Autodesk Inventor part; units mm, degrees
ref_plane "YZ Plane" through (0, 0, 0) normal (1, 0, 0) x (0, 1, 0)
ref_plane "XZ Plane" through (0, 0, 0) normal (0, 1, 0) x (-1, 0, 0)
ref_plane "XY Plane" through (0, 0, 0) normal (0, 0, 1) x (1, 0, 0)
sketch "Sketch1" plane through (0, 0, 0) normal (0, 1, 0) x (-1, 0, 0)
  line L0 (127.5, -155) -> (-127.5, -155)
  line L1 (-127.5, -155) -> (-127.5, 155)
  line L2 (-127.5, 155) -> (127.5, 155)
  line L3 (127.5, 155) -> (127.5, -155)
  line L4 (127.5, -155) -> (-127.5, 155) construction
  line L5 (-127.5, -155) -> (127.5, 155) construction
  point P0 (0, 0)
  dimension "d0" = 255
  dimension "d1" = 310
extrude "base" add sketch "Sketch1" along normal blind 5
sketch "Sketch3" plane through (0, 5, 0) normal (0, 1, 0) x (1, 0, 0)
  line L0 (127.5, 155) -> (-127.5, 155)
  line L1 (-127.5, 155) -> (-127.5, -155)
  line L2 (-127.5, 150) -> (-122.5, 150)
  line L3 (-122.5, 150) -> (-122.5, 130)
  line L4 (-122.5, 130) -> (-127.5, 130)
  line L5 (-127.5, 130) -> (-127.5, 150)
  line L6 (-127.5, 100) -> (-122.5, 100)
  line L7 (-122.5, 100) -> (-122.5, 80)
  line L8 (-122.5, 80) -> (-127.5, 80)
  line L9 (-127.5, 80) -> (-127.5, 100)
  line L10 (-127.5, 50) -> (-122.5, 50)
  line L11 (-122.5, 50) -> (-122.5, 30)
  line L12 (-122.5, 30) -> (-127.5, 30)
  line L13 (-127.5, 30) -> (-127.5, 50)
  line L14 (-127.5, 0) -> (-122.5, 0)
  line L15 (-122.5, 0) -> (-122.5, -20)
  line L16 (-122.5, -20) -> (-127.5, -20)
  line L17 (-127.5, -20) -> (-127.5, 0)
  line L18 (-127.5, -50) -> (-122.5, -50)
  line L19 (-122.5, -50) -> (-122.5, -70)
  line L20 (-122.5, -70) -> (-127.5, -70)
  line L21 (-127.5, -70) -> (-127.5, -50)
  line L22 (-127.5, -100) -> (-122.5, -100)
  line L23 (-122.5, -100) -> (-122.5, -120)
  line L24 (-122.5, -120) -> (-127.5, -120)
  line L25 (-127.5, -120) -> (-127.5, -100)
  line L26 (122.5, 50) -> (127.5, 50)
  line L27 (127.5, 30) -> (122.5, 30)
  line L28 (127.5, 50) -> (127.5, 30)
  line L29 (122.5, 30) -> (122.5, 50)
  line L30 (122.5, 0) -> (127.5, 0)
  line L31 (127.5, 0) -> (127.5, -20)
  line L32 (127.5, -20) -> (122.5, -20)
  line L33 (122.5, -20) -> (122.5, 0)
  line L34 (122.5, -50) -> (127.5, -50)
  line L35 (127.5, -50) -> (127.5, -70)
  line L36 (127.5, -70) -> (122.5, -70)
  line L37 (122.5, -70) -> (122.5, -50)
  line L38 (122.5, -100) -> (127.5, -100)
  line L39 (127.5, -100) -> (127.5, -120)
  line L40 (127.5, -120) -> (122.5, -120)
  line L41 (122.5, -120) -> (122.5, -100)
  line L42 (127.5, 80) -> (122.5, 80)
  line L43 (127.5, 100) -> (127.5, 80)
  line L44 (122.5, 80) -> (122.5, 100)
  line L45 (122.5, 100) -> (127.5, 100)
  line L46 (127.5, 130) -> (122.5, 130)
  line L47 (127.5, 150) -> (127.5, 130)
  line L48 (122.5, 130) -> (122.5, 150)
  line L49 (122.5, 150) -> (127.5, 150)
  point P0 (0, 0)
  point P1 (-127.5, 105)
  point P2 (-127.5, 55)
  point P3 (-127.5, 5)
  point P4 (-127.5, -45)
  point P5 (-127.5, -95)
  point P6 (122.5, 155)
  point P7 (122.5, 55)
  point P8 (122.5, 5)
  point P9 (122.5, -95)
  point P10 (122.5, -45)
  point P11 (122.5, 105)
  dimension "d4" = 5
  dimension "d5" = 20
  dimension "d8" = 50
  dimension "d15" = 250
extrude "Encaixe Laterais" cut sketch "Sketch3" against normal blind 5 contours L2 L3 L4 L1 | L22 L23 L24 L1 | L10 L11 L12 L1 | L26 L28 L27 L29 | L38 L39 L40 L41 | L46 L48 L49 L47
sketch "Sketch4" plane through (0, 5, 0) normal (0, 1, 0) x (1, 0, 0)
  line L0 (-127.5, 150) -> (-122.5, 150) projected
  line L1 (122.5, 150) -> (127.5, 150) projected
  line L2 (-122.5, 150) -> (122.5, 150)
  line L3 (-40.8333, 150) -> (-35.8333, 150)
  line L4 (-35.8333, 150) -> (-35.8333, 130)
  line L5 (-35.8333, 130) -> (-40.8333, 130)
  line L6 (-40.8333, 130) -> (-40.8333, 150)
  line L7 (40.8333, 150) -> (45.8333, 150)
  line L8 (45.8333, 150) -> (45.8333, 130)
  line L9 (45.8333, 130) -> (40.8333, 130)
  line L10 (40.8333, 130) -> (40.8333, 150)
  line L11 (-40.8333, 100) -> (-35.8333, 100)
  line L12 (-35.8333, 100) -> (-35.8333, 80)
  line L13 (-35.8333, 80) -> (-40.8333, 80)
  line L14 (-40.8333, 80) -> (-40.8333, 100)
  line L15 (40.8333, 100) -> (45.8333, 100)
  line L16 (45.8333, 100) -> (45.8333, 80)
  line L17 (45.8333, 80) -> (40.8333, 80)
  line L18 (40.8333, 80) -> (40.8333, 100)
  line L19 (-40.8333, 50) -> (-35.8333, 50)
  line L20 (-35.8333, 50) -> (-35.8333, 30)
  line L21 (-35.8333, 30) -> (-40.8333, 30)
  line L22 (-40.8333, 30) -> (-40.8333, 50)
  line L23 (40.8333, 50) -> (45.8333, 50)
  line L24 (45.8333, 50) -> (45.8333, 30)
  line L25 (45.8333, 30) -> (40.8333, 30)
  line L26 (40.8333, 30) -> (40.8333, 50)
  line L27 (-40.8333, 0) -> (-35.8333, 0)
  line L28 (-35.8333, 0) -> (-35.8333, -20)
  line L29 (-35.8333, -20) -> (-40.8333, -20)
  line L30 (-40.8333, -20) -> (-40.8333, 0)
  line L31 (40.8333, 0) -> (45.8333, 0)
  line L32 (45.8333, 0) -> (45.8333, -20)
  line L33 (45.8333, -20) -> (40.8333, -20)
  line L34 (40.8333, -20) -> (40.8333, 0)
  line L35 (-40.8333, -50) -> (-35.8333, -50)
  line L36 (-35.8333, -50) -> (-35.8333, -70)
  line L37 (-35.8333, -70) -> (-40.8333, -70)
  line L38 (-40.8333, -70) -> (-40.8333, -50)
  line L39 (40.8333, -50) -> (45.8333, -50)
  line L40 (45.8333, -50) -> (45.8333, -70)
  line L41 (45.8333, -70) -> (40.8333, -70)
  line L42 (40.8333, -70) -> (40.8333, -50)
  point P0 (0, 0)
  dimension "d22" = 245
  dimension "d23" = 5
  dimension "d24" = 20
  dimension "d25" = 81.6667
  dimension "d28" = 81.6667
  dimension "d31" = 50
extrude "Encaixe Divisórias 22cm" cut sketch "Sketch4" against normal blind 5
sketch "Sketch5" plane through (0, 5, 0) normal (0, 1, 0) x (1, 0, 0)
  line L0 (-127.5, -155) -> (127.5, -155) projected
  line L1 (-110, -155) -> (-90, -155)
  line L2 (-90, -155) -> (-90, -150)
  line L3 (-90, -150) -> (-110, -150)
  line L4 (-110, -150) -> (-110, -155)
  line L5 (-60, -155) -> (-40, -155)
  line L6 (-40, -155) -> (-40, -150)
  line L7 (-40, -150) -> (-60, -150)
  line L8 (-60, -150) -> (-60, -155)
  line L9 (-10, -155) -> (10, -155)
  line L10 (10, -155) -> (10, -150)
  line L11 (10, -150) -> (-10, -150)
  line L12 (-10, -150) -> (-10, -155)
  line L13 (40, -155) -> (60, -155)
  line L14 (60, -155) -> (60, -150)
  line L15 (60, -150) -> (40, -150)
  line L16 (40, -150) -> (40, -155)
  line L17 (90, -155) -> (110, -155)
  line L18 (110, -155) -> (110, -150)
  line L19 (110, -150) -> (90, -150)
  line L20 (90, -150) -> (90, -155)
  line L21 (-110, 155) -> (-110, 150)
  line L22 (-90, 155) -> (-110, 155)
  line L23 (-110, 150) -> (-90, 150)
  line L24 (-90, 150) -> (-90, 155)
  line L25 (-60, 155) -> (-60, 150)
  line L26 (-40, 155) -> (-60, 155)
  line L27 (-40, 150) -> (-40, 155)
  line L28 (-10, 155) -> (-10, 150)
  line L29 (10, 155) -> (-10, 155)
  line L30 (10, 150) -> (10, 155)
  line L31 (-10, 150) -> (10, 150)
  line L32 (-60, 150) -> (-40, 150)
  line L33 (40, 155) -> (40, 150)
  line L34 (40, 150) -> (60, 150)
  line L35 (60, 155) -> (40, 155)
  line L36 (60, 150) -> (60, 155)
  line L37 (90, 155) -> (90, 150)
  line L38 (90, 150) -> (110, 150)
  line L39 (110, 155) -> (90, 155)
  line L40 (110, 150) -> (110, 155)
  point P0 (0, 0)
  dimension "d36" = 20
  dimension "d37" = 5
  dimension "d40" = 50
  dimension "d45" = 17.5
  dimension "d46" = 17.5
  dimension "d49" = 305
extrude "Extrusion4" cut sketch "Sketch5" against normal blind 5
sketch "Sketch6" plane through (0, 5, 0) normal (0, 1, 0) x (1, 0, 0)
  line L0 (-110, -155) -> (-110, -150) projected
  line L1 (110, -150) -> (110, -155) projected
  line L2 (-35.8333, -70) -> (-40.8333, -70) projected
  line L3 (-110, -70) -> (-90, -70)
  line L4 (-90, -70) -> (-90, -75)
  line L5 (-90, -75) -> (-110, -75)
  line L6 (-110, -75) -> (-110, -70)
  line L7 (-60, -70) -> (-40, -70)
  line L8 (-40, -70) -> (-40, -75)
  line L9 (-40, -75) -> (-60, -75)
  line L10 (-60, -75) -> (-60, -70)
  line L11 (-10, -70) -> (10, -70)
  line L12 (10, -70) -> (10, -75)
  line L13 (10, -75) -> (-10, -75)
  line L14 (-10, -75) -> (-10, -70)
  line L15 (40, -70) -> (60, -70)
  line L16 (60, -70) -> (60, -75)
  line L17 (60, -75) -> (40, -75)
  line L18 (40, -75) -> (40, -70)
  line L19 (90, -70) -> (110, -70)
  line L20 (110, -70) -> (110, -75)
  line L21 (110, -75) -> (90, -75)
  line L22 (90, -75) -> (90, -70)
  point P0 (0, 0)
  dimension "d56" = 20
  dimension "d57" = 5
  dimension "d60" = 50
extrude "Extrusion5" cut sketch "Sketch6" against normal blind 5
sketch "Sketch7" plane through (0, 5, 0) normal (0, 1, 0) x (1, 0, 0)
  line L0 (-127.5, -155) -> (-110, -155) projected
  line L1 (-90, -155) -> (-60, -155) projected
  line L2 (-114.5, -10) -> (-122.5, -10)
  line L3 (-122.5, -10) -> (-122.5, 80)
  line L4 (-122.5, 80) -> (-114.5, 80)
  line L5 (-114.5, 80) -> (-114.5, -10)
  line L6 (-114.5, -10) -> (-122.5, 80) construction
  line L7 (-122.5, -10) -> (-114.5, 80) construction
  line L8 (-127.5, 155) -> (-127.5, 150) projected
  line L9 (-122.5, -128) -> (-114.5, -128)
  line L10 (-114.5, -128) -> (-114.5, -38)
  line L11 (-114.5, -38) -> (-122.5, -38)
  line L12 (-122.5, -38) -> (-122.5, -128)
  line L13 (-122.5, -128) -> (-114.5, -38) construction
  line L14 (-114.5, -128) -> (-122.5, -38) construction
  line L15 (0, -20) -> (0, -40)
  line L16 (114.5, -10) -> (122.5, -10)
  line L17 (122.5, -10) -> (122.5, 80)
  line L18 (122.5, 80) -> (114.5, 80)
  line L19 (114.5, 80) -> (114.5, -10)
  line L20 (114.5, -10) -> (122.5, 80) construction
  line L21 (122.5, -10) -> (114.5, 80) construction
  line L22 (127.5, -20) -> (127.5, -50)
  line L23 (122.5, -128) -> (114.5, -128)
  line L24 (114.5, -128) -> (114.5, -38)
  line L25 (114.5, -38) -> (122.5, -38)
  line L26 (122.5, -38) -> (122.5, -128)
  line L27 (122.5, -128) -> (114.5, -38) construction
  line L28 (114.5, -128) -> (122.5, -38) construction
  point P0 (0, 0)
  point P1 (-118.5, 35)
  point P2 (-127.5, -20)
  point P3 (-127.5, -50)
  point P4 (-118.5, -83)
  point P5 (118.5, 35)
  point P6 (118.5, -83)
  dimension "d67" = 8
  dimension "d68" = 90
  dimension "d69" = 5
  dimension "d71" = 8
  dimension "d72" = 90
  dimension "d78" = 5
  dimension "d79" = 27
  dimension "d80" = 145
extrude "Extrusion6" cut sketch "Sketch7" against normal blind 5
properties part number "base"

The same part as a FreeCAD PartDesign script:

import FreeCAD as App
import Part
import Sketcher

V = App.Vector
Q = App.Units.Quantity

doc = App.newDocument("Part")
body = doc.addObject("PartDesign::Body", "Body")

# Sketch on XZ plane
sketch1 = doc.addObject("Sketcher::SketchObject", "Sketch")
body.addObject(sketch1)
sketch1.AttachmentSupport = (doc.XZ_Plane, [""])
sketch1.MapMode = "FlatFace"
sketch1.addGeometry([
    Part.LineSegment(V(127.5, -155, 0), V(-127.5, -155, 0)),
    Part.LineSegment(V(-127.5, -155, 0), V(-127.5, 155, 0)),
    Part.LineSegment(V(-127.5, 155, 0), V(127.5, 155, 0)),
    Part.LineSegment(V(127.5, 155, 0), V(127.5, -155, 0)),
], False)
sketch1.addConstraint([
    Sketcher.Constraint("Coincident", 0, 2, 1, 1),
    Sketcher.Constraint("Coincident", 1, 2, 2, 1),
    Sketcher.Constraint("Coincident", 2, 2, 3, 1),
    Sketcher.Constraint("Coincident", 3, 2, 0, 1),
    Sketcher.Constraint("Horizontal", 0),
    Sketcher.Constraint("Vertical", 1),
    Sketcher.Constraint("Horizontal", 2),
    Sketcher.Constraint("Vertical", 3),
    Sketcher.Constraint("Symmetric", 0, 2, 2, 2, -1, 1),
    Sketcher.Constraint("DistanceX", 0, 2, 0, 1, Q("255 mm")),
    Sketcher.Constraint("DistanceY", 1, 1, 1, 2, Q("310 mm")),
])
pad1 = doc.addObject("PartDesign::Pad", "Pad")
body.addObject(pad1)
pad1.Profile = sketch1
pad1.Length = 5
pad1.Reversed = True

# Sketch on XZ plane
sketch2 = doc.addObject("Sketcher::SketchObject", "Sketch001")
body.addObject(sketch2)
sketch2.AttachmentSupport = (doc.XZ_Plane, [""])
sketch2.MapMode = "FlatFace"
sketch2.AttachmentOffset = App.Placement(V(0, 0, -5), App.Rotation())
sketch2.addGeometry([
    Part.LineSegment(V(-122.5, -150, 0), V(-127.5, -150, 0)),  # 0
    Part.LineSegment(V(-127.5, -150, 0), V(-127.5, -130, 0)),  # 1
    Part.LineSegment(V(-127.5, -130, 0), V(-122.5, -130, 0)),  # 2
    Part.LineSegment(V(-122.5, -130, 0), V(-122.5, -150, 0)),  # 3
    Part.LineSegment(V(-122.5, 100, 0), V(-127.5, 100, 0)),  # 4
    Part.LineSegment(V(-127.5, 100, 0), V(-127.5, 120, 0)),  # 5
    Part.LineSegment(V(-127.5, 120, 0), V(-122.5, 120, 0)),  # 6
    Part.LineSegment(V(-122.5, 120, 0), V(-122.5, 100, 0)),  # 7
    Part.LineSegment(V(-122.5, -50, 0), V(-127.5, -50, 0)),  # 8
    Part.LineSegment(V(-127.5, -50, 0), V(-127.5, -30, 0)),  # 9
    Part.LineSegment(V(-127.5, -30, 0), V(-122.5, -30, 0)),  # 10
    Part.LineSegment(V(-122.5, -30, 0), V(-122.5, -50, 0)),  # 11
    Part.LineSegment(V(127.5, -50, 0), V(122.5, -50, 0)),  # 12
    Part.LineSegment(V(122.5, -50, 0), V(122.5, -30, 0)),  # 13
    Part.LineSegment(V(122.5, -30, 0), V(127.5, -30, 0)),  # 14
    Part.LineSegment(V(127.5, -30, 0), V(127.5, -50, 0)),  # 15
    Part.LineSegment(V(127.5, 100, 0), V(122.5, 100, 0)),  # 16
    Part.LineSegment(V(122.5, 100, 0), V(122.5, 120, 0)),  # 17
    Part.LineSegment(V(122.5, 120, 0), V(127.5, 120, 0)),  # 18
    Part.LineSegment(V(127.5, 120, 0), V(127.5, 100, 0)),  # 19
    Part.LineSegment(V(122.5, -130, 0), V(127.5, -130, 0)),  # 20
    Part.LineSegment(V(127.5, -130, 0), V(127.5, -150, 0)),  # 21
    Part.LineSegment(V(127.5, -150, 0), V(122.5, -150, 0)),  # 22
    Part.LineSegment(V(122.5, -150, 0), V(122.5, -130, 0)),  # 23
], False)
sketch2.addConstraint([
    Sketcher.Constraint("Coincident", 0, 2, 1, 1),
    Sketcher.Constraint("Coincident", 1, 2, 2, 1),
    Sketcher.Constraint("Coincident", 2, 2, 3, 1),
    Sketcher.Constraint("Coincident", 3, 2, 0, 1),
    Sketcher.Constraint("Coincident", 4, 2, 5, 1),
    Sketcher.Constraint("Coincident", 5, 2, 6, 1),
    Sketcher.Constraint("Coincident", 6, 2, 7, 1),
    Sketcher.Constraint("Coincident", 7, 2, 4, 1),
    Sketcher.Constraint("Coincident", 8, 2, 9, 1),
    Sketcher.Constraint("Coincident", 9, 2, 10, 1),
    Sketcher.Constraint("Coincident", 10, 2, 11, 1),
    Sketcher.Constraint("Coincident", 11, 2, 8, 1),
    Sketcher.Constraint("Coincident", 12, 2, 13, 1),
    Sketcher.Constraint("Coincident", 13, 2, 14, 1),
    Sketcher.Constraint("Coincident", 14, 2, 15, 1),
    Sketcher.Constraint("Coincident", 15, 2, 12, 1),
    Sketcher.Constraint("Coincident", 16, 2, 17, 1),
    Sketcher.Constraint("Coincident", 17, 2, 18, 1),
    Sketcher.Constraint("Coincident", 18, 2, 19, 1),
    Sketcher.Constraint("Coincident", 19, 2, 16, 1),
    Sketcher.Constraint("Coincident", 20, 2, 21, 1),
    Sketcher.Constraint("Coincident", 21, 2, 22, 1),
    Sketcher.Constraint("Coincident", 22, 2, 23, 1),
    Sketcher.Constraint("Coincident", 23, 2, 20, 1),
    Sketcher.Constraint("Horizontal", 0),
    Sketcher.Constraint("Vertical", 1),
    Sketcher.Constraint("Horizontal", 2),
    Sketcher.Constraint("Vertical", 3),
    Sketcher.Constraint("Horizontal", 4),
    Sketcher.Constraint("Vertical", 5),
    Sketcher.Constraint("Horizontal", 6),
    Sketcher.Constraint("Vertical", 7),
    Sketcher.Constraint("Horizontal", 8),
    Sketcher.Constraint("Vertical", 9),
    Sketcher.Constraint("Horizontal", 10),
    Sketcher.Constraint("Vertical", 11),
    Sketcher.Constraint("Horizontal", 12),
    Sketcher.Constraint("Vertical", 13),
    Sketcher.Constraint("Horizontal", 14),
    Sketcher.Constraint("Vertical", 15),
    Sketcher.Constraint("Horizontal", 16),
    Sketcher.Constraint("Vertical", 17),
    Sketcher.Constraint("Horizontal", 18),
    Sketcher.Constraint("Vertical", 19),
    Sketcher.Constraint("Horizontal", 20),
    Sketcher.Constraint("Vertical", 21),
    Sketcher.Constraint("Horizontal", 22),
    Sketcher.Constraint("Vertical", 23),
    Sketcher.Constraint("Symmetric", 11, 2, 12, 2, -2),
    Sketcher.Constraint("Symmetric", 9, 2, 14, 2, -2),
    Sketcher.Constraint("Symmetric", 7, 2, 16, 2, -2),
    Sketcher.Constraint("Symmetric", 5, 2, 18, 2, -2),
    Sketcher.Constraint("Symmetric", 1, 2, 20, 2, -2),
    Sketcher.Constraint("Symmetric", 3, 2, 22, 2, -2),
    Sketcher.Constraint("Vertical", 1, 2, 4, 2),
    Sketcher.Constraint("Vertical", 3, 2, 6, 2),
    Sketcher.Constraint("Vertical", 5, 2, 8, 2),
    Sketcher.Constraint("Vertical", 7, 2, 10, 2),
    Sketcher.Constraint("Equal", 3, 5),
    Sketcher.Constraint("Equal", 7, 9),
    Sketcher.Constraint("DistanceX", 0, 2, 0, 1, Q("5 mm")),
    Sketcher.Constraint("DistanceY", 1, 1, 1, 2, Q("20 mm")),
    Sketcher.Constraint("DistanceY", 8, 2, -1, 1, Q("50 mm")),
    Sketcher.Constraint("DistanceY", 0, 2, 4, 2, Q("250 mm")),
    Sketcher.Constraint("DistanceX", 8, 2, 12, 2, Q("250 mm")),
    Sketcher.Constraint("DistanceY", 0, 2, -1, 1, Q("150 mm")),
])
pocket1 = doc.addObject("PartDesign::Pocket", "Pocket")
body.addObject(pocket1)
pocket1.Profile = sketch2
pocket1.Length = 5
pocket1.Reversed = True

# Sketch on XZ plane
sketch3 = doc.addObject("Sketcher::SketchObject", "Sketch002")
body.addObject(sketch3)
sketch3.AttachmentSupport = (doc.XZ_Plane, [""])
sketch3.MapMode = "FlatFace"
sketch3.AttachmentOffset = App.Placement(V(0, 0, -5), App.Rotation())
sketch3.addGeometry([
    Part.LineSegment(V(45.8333, -150, 0), V(40.8333, -150, 0)),  # 0
    Part.LineSegment(V(40.8333, -150, 0), V(40.8333, -130, 0)),  # 1
    Part.LineSegment(V(40.8333, -130, 0), V(45.8333, -130, 0)),  # 2
    Part.LineSegment(V(45.8333, -130, 0), V(45.8333, -150, 0)),  # 3
    Part.LineSegment(V(-35.8333, -150, 0), V(-40.8333, -150, 0)),  # 4
    Part.LineSegment(V(-40.8333, -150, 0), V(-40.8333, -130, 0)),  # 5
    Part.LineSegment(V(-40.8333, -130, 0), V(-35.8333, -130, 0)),  # 6
    Part.LineSegment(V(-35.8333, -130, 0), V(-35.8333, -150, 0)),  # 7
    Part.LineSegment(V(-35.8333, -100, 0), V(-40.8333, -100, 0)),  # 8
    Part.LineSegment(V(-40.8333, -100, 0), V(-40.8333, -80, 0)),  # 9
    Part.LineSegment(V(-40.8333, -80, 0), V(-35.8333, -80, 0)),  # 10
    Part.LineSegment(V(-35.8333, -80, 0), V(-35.8333, -100, 0)),  # 11
    Part.LineSegment(V(45.8333, -100, 0), V(40.8333, -100, 0)),  # 12
    Part.LineSegment(V(40.8333, -100, 0), V(40.8333, -80, 0)),  # 13
    Part.LineSegment(V(40.8333, -80, 0), V(45.8333, -80, 0)),  # 14
    Part.LineSegment(V(45.8333, -80, 0), V(45.8333, -100, 0)),  # 15
    Part.LineSegment(V(-35.8333, -50, 0), V(-40.8333, -50, 0)),  # 16
    Part.LineSegment(V(-40.8333, -50, 0), V(-40.8333, -30, 0)),  # 17
    Part.LineSegment(V(-40.8333, -30, 0), V(-35.8333, -30, 0)),  # 18
    Part.LineSegment(V(-35.8333, -30, 0), V(-35.8333, -50, 0)),  # 19
    Part.LineSegment(V(45.8333, -50, 0), V(40.8333, -50, 0)),  # 20
    Part.LineSegment(V(40.8333, -50, 0), V(40.8333, -30, 0)),  # 21
    Part.LineSegment(V(40.8333, -30, 0), V(45.8333, -30, 0)),  # 22
    Part.LineSegment(V(45.8333, -30, 0), V(45.8333, -50, 0)),  # 23
    Part.LineSegment(V(-35.8333, 0, 0), V(-40.8333, 0, 0)),  # 24
    Part.LineSegment(V(-40.8333, 0, 0), V(-40.8333, 20, 0)),  # 25
    Part.LineSegment(V(-40.8333, 20, 0), V(-35.8333, 20, 0)),  # 26
    Part.LineSegment(V(-35.8333, 20, 0), V(-35.8333, 0, 0)),  # 27
    Part.LineSegment(V(45.8333, 0, 0), V(40.8333, 0, 0)),  # 28
    Part.LineSegment(V(40.8333, 0, 0), V(40.8333, 20, 0)),  # 29
    Part.LineSegment(V(40.8333, 20, 0), V(45.8333, 20, 0)),  # 30
    Part.LineSegment(V(45.8333, 20, 0), V(45.8333, 0, 0)),  # 31
    Part.LineSegment(V(-35.8333, 50, 0), V(-40.8333, 50, 0)),  # 32
    Part.LineSegment(V(-40.8333, 50, 0), V(-40.8333, 70, 0)),  # 33
    Part.LineSegment(V(-40.8333, 70, 0), V(-35.8333, 70, 0)),  # 34
    Part.LineSegment(V(-35.8333, 70, 0), V(-35.8333, 50, 0)),  # 35
    Part.LineSegment(V(45.8333, 50, 0), V(40.8333, 50, 0)),  # 36
    Part.LineSegment(V(40.8333, 50, 0), V(40.8333, 70, 0)),  # 37
    Part.LineSegment(V(40.8333, 70, 0), V(45.8333, 70, 0)),  # 38
    Part.LineSegment(V(45.8333, 70, 0), V(45.8333, 50, 0)),  # 39
], False)
sketch3.addConstraint([
    Sketcher.Constraint("Coincident", 0, 2, 1, 1),
    Sketcher.Constraint("Coincident", 1, 2, 2, 1),
    Sketcher.Constraint("Coincident", 2, 2, 3, 1),
    Sketcher.Constraint("Coincident", 3, 2, 0, 1),
    Sketcher.Constraint("Coincident", 4, 2, 5, 1),
    Sketcher.Constraint("Coincident", 5, 2, 6, 1),
    Sketcher.Constraint("Coincident", 6, 2, 7, 1),
    Sketcher.Constraint("Coincident", 7, 2, 4, 1),
    Sketcher.Constraint("Coincident", 8, 2, 9, 1),
    Sketcher.Constraint("Coincident", 9, 2, 10, 1),
    Sketcher.Constraint("Coincident", 10, 2, 11, 1),
    Sketcher.Constraint("Coincident", 11, 2, 8, 1),
    Sketcher.Constraint("Coincident", 12, 2, 13, 1),
    Sketcher.Constraint("Coincident", 13, 2, 14, 1),
    Sketcher.Constraint("Coincident", 14, 2, 15, 1),
    Sketcher.Constraint("Coincident", 15, 2, 12, 1),
    Sketcher.Constraint("Coincident", 16, 2, 17, 1),
    Sketcher.Constraint("Coincident", 17, 2, 18, 1),
    Sketcher.Constraint("Coincident", 18, 2, 19, 1),
    Sketcher.Constraint("Coincident", 19, 2, 16, 1),
    Sketcher.Constraint("Coincident", 20, 2, 21, 1),
    Sketcher.Constraint("Coincident", 21, 2, 22, 1),
    Sketcher.Constraint("Coincident", 22, 2, 23, 1),
    Sketcher.Constraint("Coincident", 23, 2, 20, 1),
    Sketcher.Constraint("Coincident", 24, 2, 25, 1),
    Sketcher.Constraint("Coincident", 25, 2, 26, 1),
    Sketcher.Constraint("Coincident", 26, 2, 27, 1),
    Sketcher.Constraint("Coincident", 27, 2, 24, 1),
    Sketcher.Constraint("Coincident", 28, 2, 29, 1),
    Sketcher.Constraint("Coincident", 29, 2, 30, 1),
    Sketcher.Constraint("Coincident", 30, 2, 31, 1),
    Sketcher.Constraint("Coincident", 31, 2, 28, 1),
    Sketcher.Constraint("Coincident", 32, 2, 33, 1),
    Sketcher.Constraint("Coincident", 33, 2, 34, 1),
    Sketcher.Constraint("Coincident", 34, 2, 35, 1),
    Sketcher.Constraint("Coincident", 35, 2, 32, 1),
    Sketcher.Constraint("Coincident", 36, 2, 37, 1),
    Sketcher.Constraint("Coincident", 37, 2, 38, 1),
    Sketcher.Constraint("Coincident", 38, 2, 39, 1),
    Sketcher.Constraint("Coincident", 39, 2, 36, 1),
    Sketcher.Constraint("Horizontal", 0),
    Sketcher.Constraint("Vertical", 1),
    Sketcher.Constraint("Horizontal", 2),
    Sketcher.Constraint("Vertical", 3),
    Sketcher.Constraint("Horizontal", 4),
    Sketcher.Constraint("Vertical", 5),
    Sketcher.Constraint("Horizontal", 6),
    Sketcher.Constraint("Vertical", 7),
    Sketcher.Constraint("Horizontal", 8),
    Sketcher.Constraint("Vertical", 9),
    Sketcher.Constraint("Horizontal", 10),
    Sketcher.Constraint("Vertical", 11),
    Sketcher.Constraint("Horizontal", 12),
    Sketcher.Constraint("Vertical", 13),
    Sketcher.Constraint("Horizontal", 14),
    Sketcher.Constraint("Vertical", 15),
    Sketcher.Constraint("Horizontal", 16),
    Sketcher.Constraint("Vertical", 17),
    Sketcher.Constraint("Horizontal", 18),
    Sketcher.Constraint("Vertical", 19),
    Sketcher.Constraint("Horizontal", 20),
    Sketcher.Constraint("Vertical", 21),
    Sketcher.Constraint("Horizontal", 22),
    Sketcher.Constraint("Vertical", 23),
    Sketcher.Constraint("Horizontal", 24),
    Sketcher.Constraint("Vertical", 25),
    Sketcher.Constraint("Horizontal", 26),
    Sketcher.Constraint("Vertical", 27),
    Sketcher.Constraint("Horizontal", 28),
    Sketcher.Constraint("Vertical", 29),
    Sketcher.Constraint("Horizontal", 30),
    Sketcher.Constraint("Vertical", 31),
    Sketcher.Constraint("Horizontal", 32),
    Sketcher.Constraint("Vertical", 33),
    Sketcher.Constraint("Horizontal", 34),
    Sketcher.Constraint("Vertical", 35),
    Sketcher.Constraint("Horizontal", 36),
    Sketcher.Constraint("Vertical", 37),
    Sketcher.Constraint("Horizontal", 38),
    Sketcher.Constraint("Vertical", 39),
    Sketcher.Constraint("Symmetric", 24, 2, 28, 2, -1, 1),
    Sketcher.Constraint("Symmetric", 20, 2, 32, 2, -1, 1),
    Sketcher.Constraint("Symmetric", 16, 2, 36, 2, -1, 1),
    Sketcher.Constraint("Symmetric", 0, 2, 4, 2, -2),
    Sketcher.Constraint("Symmetric", 8, 2, 12, 2, -2),
    Sketcher.Constraint("Symmetric", 16, 2, 20, 2, -2),
    Sketcher.Constraint("PointOnObject", 24, 2, -1),
    Sketcher.Constraint("Horizontal", 2, 2, 5, 2),
    Sketcher.Constraint("Horizontal", 10, 2, 13, 2),
    Sketcher.Constraint("Horizontal", 18, 2, 21, 2),
    Sketcher.Constraint("Horizontal", 26, 2, 29, 2),
    Sketcher.Constraint("Horizontal", 34, 2, 37, 2),
    Sketcher.Constraint("Vertical", 5, 2, 8, 2),
    Sketcher.Constraint("Vertical", 7, 2, 10, 2),
    Sketcher.Constraint("Vertical", 3, 2, 14, 2),
    Sketcher.Constraint("Vertical", 9, 2, 16, 2),
    Sketcher.Constraint("Vertical", 11, 2, 18, 2),
    Sketcher.Constraint("Vertical", 15, 2, 22, 2),
    Sketcher.Constraint("Vertical", 17, 2, 24, 2),
    Sketcher.Constraint("Vertical", 19, 2, 26, 2),
    Sketcher.Constraint("Vertical", 23, 2, 30, 2),
    Sketcher.Constraint("Vertical", 27, 2, 34, 2),
    Sketcher.Constraint("Vertical", 31, 2, 38, 2),
    Sketcher.Constraint("Equal", 2, 4),
    Sketcher.Constraint("Equal", 7, 9),
    Sketcher.Constraint("Equal", 15, 17),
    Sketcher.Constraint("Equal", 23, 25),
    Sketcher.Constraint("Equal", 31, 33),
    Sketcher.Constraint("DistanceX", 0, 2, 0, 1, Q("5 mm")),
    Sketcher.Constraint("DistanceY", 1, 1, 1, 2, Q("20 mm")),
    Sketcher.Constraint("DistanceY", 16, 2, -1, 1, Q("50 mm")),
    Sketcher.Constraint("DistanceY", 4, 2, 8, 2, Q("50 mm")),
    Sketcher.Constraint("DistanceY", 8, 2, 16, 2, Q("50 mm")),
    Sketcher.Constraint("DistanceX", 4, 2, 0, 2, Q("81.6666 mm")),
])
pocket2 = doc.addObject("PartDesign::Pocket", "Pocket001")
body.addObject(pocket2)
pocket2.Profile = sketch3
pocket2.Length = 5
pocket2.Reversed = True

# Sketch on XZ plane
sketch4 = doc.addObject("Sketcher::SketchObject", "Sketch003")
body.addObject(sketch4)
sketch4.AttachmentSupport = (doc.XZ_Plane, [""])
sketch4.MapMode = "FlatFace"
sketch4.AttachmentOffset = App.Placement(V(0, 0, -5), App.Rotation())
sketch4.addGeometry([
    Part.LineSegment(V(-110, 150, 0), V(-110, 155, 0)),  # 0
    Part.LineSegment(V(-110, 155, 0), V(-90, 155, 0)),  # 1
    Part.LineSegment(V(-90, 155, 0), V(-90, 150, 0)),  # 2
    Part.LineSegment(V(-90, 150, 0), V(-110, 150, 0)),  # 3
    Part.LineSegment(V(90, 150, 0), V(90, 155, 0)),  # 4
    Part.LineSegment(V(90, 155, 0), V(110, 155, 0)),  # 5
    Part.LineSegment(V(110, 155, 0), V(110, 150, 0)),  # 6
    Part.LineSegment(V(110, 150, 0), V(90, 150, 0)),  # 7
    Part.LineSegment(V(40, 150, 0), V(40, 155, 0)),  # 8
    Part.LineSegment(V(40, 155, 0), V(60, 155, 0)),  # 9
    Part.LineSegment(V(60, 155, 0), V(60, 150, 0)),  # 10
    Part.LineSegment(V(60, 150, 0), V(40, 150, 0)),  # 11
    Part.LineSegment(V(-10, 150, 0), V(-10, 155, 0)),  # 12
    Part.LineSegment(V(-10, 155, 0), V(10, 155, 0)),  # 13
    Part.LineSegment(V(10, 155, 0), V(10, 150, 0)),  # 14
    Part.LineSegment(V(10, 150, 0), V(-10, 150, 0)),  # 15
    Part.LineSegment(V(-60, 150, 0), V(-60, 155, 0)),  # 16
    Part.LineSegment(V(-60, 155, 0), V(-40, 155, 0)),  # 17
    Part.LineSegment(V(-40, 155, 0), V(-40, 150, 0)),  # 18
    Part.LineSegment(V(-40, 150, 0), V(-60, 150, 0)),  # 19
    Part.LineSegment(V(-90, -155, 0), V(-110, -155, 0)),  # 20
    Part.LineSegment(V(-110, -155, 0), V(-110, -150, 0)),  # 21
    Part.LineSegment(V(-110, -150, 0), V(-90, -150, 0)),  # 22
    Part.LineSegment(V(-90, -150, 0), V(-90, -155, 0)),  # 23
    Part.LineSegment(V(-40, -155, 0), V(-60, -155, 0)),  # 24
    Part.LineSegment(V(-60, -155, 0), V(-60, -150, 0)),  # 25
    Part.LineSegment(V(-60, -150, 0), V(-40, -150, 0)),  # 26
    Part.LineSegment(V(-40, -150, 0), V(-40, -155, 0)),  # 27
    Part.LineSegment(V(10, -155, 0), V(-10, -155, 0)),  # 28
    Part.LineSegment(V(-10, -155, 0), V(-10, -150, 0)),  # 29
    Part.LineSegment(V(-10, -150, 0), V(10, -150, 0)),  # 30
    Part.LineSegment(V(10, -150, 0), V(10, -155, 0)),  # 31
    Part.LineSegment(V(60, -155, 0), V(40, -155, 0)),  # 32
    Part.LineSegment(V(40, -155, 0), V(40, -150, 0)),  # 33
    Part.LineSegment(V(40, -150, 0), V(60, -150, 0)),  # 34
    Part.LineSegment(V(60, -150, 0), V(60, -155, 0)),  # 35
    Part.LineSegment(V(110, -155, 0), V(90, -155, 0)),  # 36
    Part.LineSegment(V(90, -155, 0), V(90, -150, 0)),  # 37
    Part.LineSegment(V(90, -150, 0), V(110, -150, 0)),  # 38
    Part.LineSegment(V(110, -150, 0), V(110, -155, 0)),  # 39
], False)
sketch4.addConstraint([
    Sketcher.Constraint("Coincident", 0, 2, 1, 1),
    Sketcher.Constraint("Coincident", 1, 2, 2, 1),
    Sketcher.Constraint("Coincident", 2, 2, 3, 1),
    Sketcher.Constraint("Coincident", 3, 2, 0, 1),
    Sketcher.Constraint("Coincident", 4, 2, 5, 1),
    Sketcher.Constraint("Coincident", 5, 2, 6, 1),
    Sketcher.Constraint("Coincident", 6, 2, 7, 1),
    Sketcher.Constraint("Coincident", 7, 2, 4, 1),
    Sketcher.Constraint("Coincident", 8, 2, 9, 1),
    Sketcher.Constraint("Coincident", 9, 2, 10, 1),
    Sketcher.Constraint("Coincident", 10, 2, 11, 1),
    Sketcher.Constraint("Coincident", 11, 2, 8, 1),
    Sketcher.Constraint("Coincident", 12, 2, 13, 1),
    Sketcher.Constraint("Coincident", 13, 2, 14, 1),
    Sketcher.Constraint("Coincident", 14, 2, 15, 1),
    Sketcher.Constraint("Coincident", 15, 2, 12, 1),
    Sketcher.Constraint("Coincident", 16, 2, 17, 1),
    Sketcher.Constraint("Coincident", 17, 2, 18, 1),
    Sketcher.Constraint("Coincident", 18, 2, 19, 1),
    Sketcher.Constraint("Coincident", 19, 2, 16, 1),
    Sketcher.Constraint("Coincident", 20, 2, 21, 1),
    Sketcher.Constraint("Coincident", 21, 2, 22, 1),
    Sketcher.Constraint("Coincident", 22, 2, 23, 1),
    Sketcher.Constraint("Coincident", 23, 2, 20, 1),
    Sketcher.Constraint("Coincident", 24, 2, 25, 1),
    Sketcher.Constraint("Coincident", 25, 2, 26, 1),
    Sketcher.Constraint("Coincident", 26, 2, 27, 1),
    Sketcher.Constraint("Coincident", 27, 2, 24, 1),
    Sketcher.Constraint("Coincident", 28, 2, 29, 1),
    Sketcher.Constraint("Coincident", 29, 2, 30, 1),
    Sketcher.Constraint("Coincident", 30, 2, 31, 1),
    Sketcher.Constraint("Coincident", 31, 2, 28, 1),
    Sketcher.Constraint("Coincident", 32, 2, 33, 1),
    Sketcher.Constraint("Coincident", 33, 2, 34, 1),
    Sketcher.Constraint("Coincident", 34, 2, 35, 1),
    Sketcher.Constraint("Coincident", 35, 2, 32, 1),
    Sketcher.Constraint("Coincident", 36, 2, 37, 1),
    Sketcher.Constraint("Coincident", 37, 2, 38, 1),
    Sketcher.Constraint("Coincident", 38, 2, 39, 1),
    Sketcher.Constraint("Coincident", 39, 2, 36, 1),
    Sketcher.Constraint("Vertical", 0),
    Sketcher.Constraint("Horizontal", 1),
    Sketcher.Constraint("Vertical", 2),
    Sketcher.Constraint("Horizontal", 3),
    Sketcher.Constraint("Vertical", 4),
    Sketcher.Constraint("Horizontal", 5),
    Sketcher.Constraint("Vertical", 6),
    Sketcher.Constraint("Horizontal", 7),
    Sketcher.Constraint("Vertical", 8),
    Sketcher.Constraint("Horizontal", 9),
    Sketcher.Constraint("Vertical", 10),
    Sketcher.Constraint("Horizontal", 11),
    Sketcher.Constraint("Vertical", 12),
    Sketcher.Constraint("Horizontal", 13),
    Sketcher.Constraint("Vertical", 14),
    Sketcher.Constraint("Horizontal", 15),
    Sketcher.Constraint("Vertical", 16),
    Sketcher.Constraint("Horizontal", 17),
    Sketcher.Constraint("Vertical", 18),
    Sketcher.Constraint("Horizontal", 19),
    Sketcher.Constraint("Horizontal", 20),
    Sketcher.Constraint("Vertical", 21),
    Sketcher.Constraint("Horizontal", 22),
    Sketcher.Constraint("Vertical", 23),
    Sketcher.Constraint("Horizontal", 24),
    Sketcher.Constraint("Vertical", 25),
    Sketcher.Constraint("Horizontal", 26),
    Sketcher.Constraint("Vertical", 27),
    Sketcher.Constraint("Horizontal", 28),
    Sketcher.Constraint("Vertical", 29),
    Sketcher.Constraint("Horizontal", 30),
    Sketcher.Constraint("Vertical", 31),
    Sketcher.Constraint("Horizontal", 32),
    Sketcher.Constraint("Vertical", 33),
    Sketcher.Constraint("Horizontal", 34),
    Sketcher.Constraint("Vertical", 35),
    Sketcher.Constraint("Horizontal", 36),
    Sketcher.Constraint("Vertical", 37),
    Sketcher.Constraint("Horizontal", 38),
    Sketcher.Constraint("Vertical", 39),
    Sketcher.Constraint("Symmetric", 5, 2, 20, 2, -1, 1),
    Sketcher.Constraint("Symmetric", 7, 2, 22, 2, -1, 1),
    Sketcher.Constraint("Symmetric", 9, 2, 24, 2, -1, 1),
    Sketcher.Constraint("Symmetric", 11, 2, 26, 2, -1, 1),
    Sketcher.Constraint("Symmetric", 13, 2, 28, 2, -1, 1),
    Sketcher.Constraint("Symmetric", 15, 2, 30, 2, -1, 1),
    Sketcher.Constraint("Symmetric", 17, 2, 32, 2, -1, 1),
    Sketcher.Constraint("Symmetric", 19, 2, 34, 2, -1, 1),
    Sketcher.Constraint("Symmetric", 1, 2, 36, 2, -1, 1),
    Sketcher.Constraint("Symmetric", 3, 2, 38, 2, -1, 1),
    Sketcher.Constraint("Symmetric", 1, 2, 4, 2, -2),
    Sketcher.Constraint("Symmetric", 3, 2, 6, 2, -2),
    Sketcher.Constraint("Symmetric", 9, 2, 16, 2, -2),
    Sketcher.Constraint("Symmetric", 11, 2, 18, 2, -2),
    Sketcher.Constraint("Horizontal", 5, 2, 8, 2),
    Sketcher.Constraint("Horizontal", 7, 2, 10, 2),
    Sketcher.Constraint("Horizontal", 9, 2, 12, 2),
    Sketcher.Constraint("Horizontal", 11, 2, 14, 2),
    Sketcher.Constraint("Vertical", 15, 2, 28, 2),
    Sketcher.Constraint("Equal", 7, 9),
    Sketcher.Constraint("Equal", 11, 13),
    Sketcher.Constraint("DistanceX", 1, 1, 1, 2, Q("20 mm")),
    Sketcher.Constraint("DistanceY", 0, 1, 0, 2, Q("5 mm")),
    Sketcher.Constraint("DistanceX", 8, 2, 4, 2, Q("50 mm")),
    Sketcher.Constraint("DistanceX", 12, 2, 8, 2, Q("50 mm")),
    Sketcher.Constraint("DistanceY", 20, 2, 3, 2, Q("305 mm")),
])
pocket3 = doc.addObject("PartDesign::Pocket", "Pocket002")
body.addObject(pocket3)
pocket3.Profile = sketch4
pocket3.Length = 5
pocket3.Reversed = True

# Sketch on XZ plane
sketch5 = doc.addObject("Sketcher::SketchObject", "Sketch004")
body.addObject(sketch5)
sketch5.AttachmentSupport = (doc.XZ_Plane, [""])
sketch5.MapMode = "FlatFace"
sketch5.AttachmentOffset = App.Placement(V(0, 0, -5), App.Rotation())
sketch5.addGeometry([
    Part.LineSegment(V(-40, 75, 0), V(-40, 70, 0)),  # 0
    Part.LineSegment(V(-40, 70, 0), V(-60, 70, 0)),  # 1
    Part.LineSegment(V(-60, 70, 0), V(-60, 75, 0)),  # 2
    Part.LineSegment(V(-60, 75, 0), V(-40, 75, 0)),  # 3
    Part.LineSegment(V(-90, 70, 0), V(-110, 70, 0)),  # 4
    Part.LineSegment(V(-110, 70, 0), V(-110, 75, 0)),  # 5
    Part.LineSegment(V(-110, 75, 0), V(-90, 75, 0)),  # 6
    Part.LineSegment(V(-90, 75, 0), V(-90, 70, 0)),  # 7
    Part.LineSegment(V(10, 70, 0), V(-10, 70, 0)),  # 8
    Part.LineSegment(V(-10, 70, 0), V(-10, 75, 0)),  # 9
    Part.LineSegment(V(-10, 75, 0), V(10, 75, 0)),  # 10
    Part.LineSegment(V(10, 75, 0), V(10, 70, 0)),  # 11
    Part.LineSegment(V(60, 70, 0), V(40, 70, 0)),  # 12
    Part.LineSegment(V(40, 70, 0), V(40, 75, 0)),  # 13
    Part.LineSegment(V(40, 75, 0), V(60, 75, 0)),  # 14
    Part.LineSegment(V(60, 75, 0), V(60, 70, 0)),  # 15
    Part.LineSegment(V(110, 70, 0), V(90, 70, 0)),  # 16
    Part.LineSegment(V(90, 70, 0), V(90, 75, 0)),  # 17
    Part.LineSegment(V(90, 75, 0), V(110, 75, 0)),  # 18
    Part.LineSegment(V(110, 75, 0), V(110, 70, 0)),  # 19
], False)
sketch5.addConstraint([
    Sketcher.Constraint("Coincident", 0, 2, 1, 1),
    Sketcher.Constraint("Coincident", 1, 2, 2, 1),
    Sketcher.Constraint("Coincident", 2, 2, 3, 1),
    Sketcher.Constraint("Coincident", 3, 2, 0, 1),
    Sketcher.Constraint("Coincident", 4, 2, 5, 1),
    Sketcher.Constraint("Coincident", 5, 2, 6, 1),
    Sketcher.Constraint("Coincident", 6, 2, 7, 1),
    Sketcher.Constraint("Coincident", 7, 2, 4, 1),
    Sketcher.Constraint("Coincident", 8, 2, 9, 1),
    Sketcher.Constraint("Coincident", 9, 2, 10, 1),
    Sketcher.Constraint("Coincident", 10, 2, 11, 1),
    Sketcher.Constraint("Coincident", 11, 2, 8, 1),
    Sketcher.Constraint("Coincident", 12, 2, 13, 1),
    Sketcher.Constraint("Coincident", 13, 2, 14, 1),
    Sketcher.Constraint("Coincident", 14, 2, 15, 1),
    Sketcher.Constraint("Coincident", 15, 2, 12, 1),
    Sketcher.Constraint("Coincident", 16, 2, 17, 1),
    Sketcher.Constraint("Coincident", 17, 2, 18, 1),
    Sketcher.Constraint("Coincident", 18, 2, 19, 1),
    Sketcher.Constraint("Coincident", 19, 2, 16, 1),
    Sketcher.Constraint("Vertical", 0),
    Sketcher.Constraint("Horizontal", 1),
    Sketcher.Constraint("Vertical", 2),
    Sketcher.Constraint("Horizontal", 3),
    Sketcher.Constraint("Horizontal", 4),
    Sketcher.Constraint("Vertical", 5),
    Sketcher.Constraint("Horizontal", 6),
    Sketcher.Constraint("Vertical", 7),
    Sketcher.Constraint("Horizontal", 8),
    Sketcher.Constraint("Vertical", 9),
    Sketcher.Constraint("Horizontal", 10),
    Sketcher.Constraint("Vertical", 11),
    Sketcher.Constraint("Horizontal", 12),
    Sketcher.Constraint("Vertical", 13),
    Sketcher.Constraint("Horizontal", 14),
    Sketcher.Constraint("Vertical", 15),
    Sketcher.Constraint("Horizontal", 16),
    Sketcher.Constraint("Vertical", 17),
    Sketcher.Constraint("Horizontal", 18),
    Sketcher.Constraint("Vertical", 19),
    Sketcher.Constraint("Symmetric", 0, 2, 12, 2, -2),
    Sketcher.Constraint("Symmetric", 2, 2, 14, 2, -2),
    Sketcher.Constraint("Symmetric", 7, 2, 16, 2, -2),
    Sketcher.Constraint("Symmetric", 5, 2, 18, 2, -2),
    Sketcher.Constraint("Horizontal", 1, 2, 4, 2),
    Sketcher.Constraint("Horizontal", 3, 2, 5, 2),
    Sketcher.Constraint("Horizontal", 7, 2, 8, 2),
    Sketcher.Constraint("Horizontal", 6, 2, 9, 2),
    Sketcher.Constraint("Equal", 3, 4),
    Sketcher.Constraint("Equal", 6, 8),
    Sketcher.Constraint("DistanceX", 1, 2, 1, 1, Q("20 mm")),
    Sketcher.Constraint("DistanceY", 0, 2, 0, 1, Q("5 mm")),
    Sketcher.Constraint("DistanceX", 8, 2, -1, 1, Q("10 mm")),
    Sketcher.Constraint("DistanceX", 4, 2, 1, 2, Q("50 mm")),
    Sketcher.Constraint("DistanceX", 1, 2, 8, 2, Q("50 mm")),
    Sketcher.Constraint("DistanceY", -1, 1, 0, 2, Q("70 mm")),
])
pocket4 = doc.addObject("PartDesign::Pocket", "Pocket003")
body.addObject(pocket4)
pocket4.Profile = sketch5
pocket4.Length = 5
pocket4.Reversed = True

# Sketch on XZ plane
sketch6 = doc.addObject("Sketcher::SketchObject", "Sketch005")
body.addObject(sketch6)
sketch6.AttachmentSupport = (doc.XZ_Plane, [""])
sketch6.MapMode = "FlatFace"
sketch6.AttachmentOffset = App.Placement(V(0, 0, -5), App.Rotation())
sketch6.addGeometry([
    Part.LineSegment(V(-122.5, 10, 0), V(-114.5, 10, 0)),  # 0
    Part.LineSegment(V(-114.5, 10, 0), V(-114.5, -80, 0)),  # 1
    Part.LineSegment(V(-114.5, -80, 0), V(-122.5, -80, 0)),  # 2
    Part.LineSegment(V(-122.5, -80, 0), V(-122.5, 10, 0)),  # 3
    Part.LineSegment(V(-122.5, 38, 0), V(-122.5, 128, 0)),  # 4
    Part.LineSegment(V(-122.5, 128, 0), V(-114.5, 128, 0)),  # 5
    Part.LineSegment(V(-114.5, 128, 0), V(-114.5, 38, 0)),  # 6
    Part.LineSegment(V(-114.5, 38, 0), V(-122.5, 38, 0)),  # 7
    Part.LineSegment(V(114.5, -80, 0), V(114.5, 10, 0)),  # 8
    Part.LineSegment(V(114.5, 10, 0), V(122.5, 10, 0)),  # 9
    Part.LineSegment(V(122.5, 10, 0), V(122.5, -80, 0)),  # 10
    Part.LineSegment(V(122.5, -80, 0), V(114.5, -80, 0)),  # 11
    Part.LineSegment(V(114.5, 128, 0), V(122.5, 128, 0)),  # 12
    Part.LineSegment(V(122.5, 128, 0), V(122.5, 38, 0)),  # 13
    Part.LineSegment(V(122.5, 38, 0), V(114.5, 38, 0)),  # 14
    Part.LineSegment(V(114.5, 38, 0), V(114.5, 128, 0)),  # 15
], False)
sketch6.addConstraint([
    Sketcher.Constraint("Coincident", 0, 2, 1, 1),
    Sketcher.Constraint("Coincident", 1, 2, 2, 1),
    Sketcher.Constraint("Coincident", 2, 2, 3, 1),
    Sketcher.Constraint("Coincident", 3, 2, 0, 1),
    Sketcher.Constraint("Coincident", 4, 2, 5, 1),
    Sketcher.Constraint("Coincident", 5, 2, 6, 1),
    Sketcher.Constraint("Coincident", 6, 2, 7, 1),
    Sketcher.Constraint("Coincident", 7, 2, 4, 1),
    Sketcher.Constraint("Coincident", 8, 2, 9, 1),
    Sketcher.Constraint("Coincident", 9, 2, 10, 1),
    Sketcher.Constraint("Coincident", 10, 2, 11, 1),
    Sketcher.Constraint("Coincident", 11, 2, 8, 1),
    Sketcher.Constraint("Coincident", 12, 2, 13, 1),
    Sketcher.Constraint("Coincident", 13, 2, 14, 1),
    Sketcher.Constraint("Coincident", 14, 2, 15, 1),
    Sketcher.Constraint("Coincident", 15, 2, 12, 1),
    Sketcher.Constraint("Horizontal", 0),
    Sketcher.Constraint("Vertical", 1),
    Sketcher.Constraint("Horizontal", 2),
    Sketcher.Constraint("Vertical", 3),
    Sketcher.Constraint("Vertical", 4),
    Sketcher.Constraint("Horizontal", 5),
    Sketcher.Constraint("Vertical", 6),
    Sketcher.Constraint("Horizontal", 7),
    Sketcher.Constraint("Vertical", 8),
    Sketcher.Constraint("Horizontal", 9),
    Sketcher.Constraint("Vertical", 10),
    Sketcher.Constraint("Horizontal", 11),
    Sketcher.Constraint("Horizontal", 12),
    Sketcher.Constraint("Vertical", 13),
    Sketcher.Constraint("Horizontal", 14),
    Sketcher.Constraint("Vertical", 15),
    Sketcher.Constraint("Symmetric", 0, 2, 8, 2, -2),
    Sketcher.Constraint("Symmetric", 2, 2, 10, 2, -2),
    Sketcher.Constraint("Symmetric", 4, 2, 12, 2, -2),
    Sketcher.Constraint("Symmetric", 6, 2, 14, 2, -2),
    Sketcher.Constraint("Vertical", 3, 2, 4, 2),
    Sketcher.Constraint("Vertical", 1, 2, 5, 2),
    Sketcher.Constraint("Equal", 3, 4),
    Sketcher.Constraint("DistanceX", 0, 1, 0, 2, Q("8 mm")),
    Sketcher.Constraint("DistanceY", 1, 2, 1, 1, Q("90 mm")),
    Sketcher.Constraint("DistanceY", -1, 1, 0, 2, Q("10 mm")),
    Sketcher.Constraint("DistanceY", -1, 1, 4, 2, Q("128 mm")),
    Sketcher.Constraint("DistanceX", 0, 2, 8, 2, Q("229 mm")),
])
pocket5 = doc.addObject("PartDesign::Pocket", "Pocket004")
body.addObject(pocket5)
pocket5.Profile = sketch6
pocket5.Length = 5
pocket5.Reversed = True

doc.recompute()
